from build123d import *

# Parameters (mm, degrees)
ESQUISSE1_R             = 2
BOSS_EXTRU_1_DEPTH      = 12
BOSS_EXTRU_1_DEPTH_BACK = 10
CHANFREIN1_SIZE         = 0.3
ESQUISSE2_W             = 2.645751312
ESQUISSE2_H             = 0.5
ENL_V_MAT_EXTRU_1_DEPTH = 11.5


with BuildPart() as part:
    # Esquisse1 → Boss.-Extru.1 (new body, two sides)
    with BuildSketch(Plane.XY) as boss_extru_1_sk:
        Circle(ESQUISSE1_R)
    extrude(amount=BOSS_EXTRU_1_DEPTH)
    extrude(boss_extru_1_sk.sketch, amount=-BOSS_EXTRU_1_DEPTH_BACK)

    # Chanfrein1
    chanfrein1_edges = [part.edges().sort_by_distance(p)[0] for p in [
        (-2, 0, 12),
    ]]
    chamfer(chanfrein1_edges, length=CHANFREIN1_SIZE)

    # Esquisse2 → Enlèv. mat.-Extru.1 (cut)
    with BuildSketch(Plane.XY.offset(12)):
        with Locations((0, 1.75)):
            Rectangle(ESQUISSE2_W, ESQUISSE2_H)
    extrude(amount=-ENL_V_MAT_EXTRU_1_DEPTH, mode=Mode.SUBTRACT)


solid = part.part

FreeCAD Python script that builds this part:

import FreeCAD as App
import Part
import Sketcher


def edges_at(feature, points):
    """Names of the edges that pass closest to the given points."""
    edges = feature.Shape.Edges
    near = lambda p: min(range(len(edges)), key=lambda i: edges[i].distToShape(Part.Vertex(*p))[0])
    return sorted({f"Edge{near(p) + 1}" for p in points})


def add_polygon(sketch, points):
    """Adds a closed chain of lines whose ends are joined by coincident constraints."""
    first, n = sketch.GeometryCount, len(points)
    for a, b in zip(points, points[1:] + points[:1]):
        sketch.addGeometry(Part.LineSegment(App.Vector(*a, 0), App.Vector(*b, 0)), False)
    for i in range(n):
        sketch.addConstraint(Sketcher.Constraint("Coincident", first + i, 2, first + (i + 1) % n, 1))

doc = App.newDocument("Part")
body = doc.addObject("PartDesign::Body", "Body")

sketch1 = body.newObject("Sketcher::SketchObject", "Sketch")
sketch1.AttachmentSupport = (doc.getObject("XY_Plane"), [""])
sketch1.MapMode = "FlatFace"
sketch1.addGeometry(Part.Circle(App.Vector(0, 0, 0), App.Vector(0, 0, 1), 2), False)
sketch1.addConstraint([
    Sketcher.Constraint("Coincident", 0, 3, -1, 1),
    Sketcher.Constraint("Diameter", 0, 4.0),
])
pad1 = body.newObject("PartDesign::Pad", "Pad")
pad1.Profile = sketch1
pad1.Type = "TwoLengths"
pad1.Length = 12
pad1.Length2 = 10
doc.recompute()

chamfer = body.newObject("PartDesign::Chamfer", "Chamfer")
chamfer.Base = (pad1, edges_at(pad1, [(-2, 0, 12)]))
chamfer.Size = 0.3

sketch2 = body.newObject("Sketcher::SketchObject", "Sketch001")
sketch2.AttachmentSupport = (doc.getObject("XY_Plane"), [""])
sketch2.MapMode = "FlatFace"
sketch2.AttachmentOffset = App.Placement(App.Vector(0, 0, 12), App.Rotation())
add_polygon(sketch2, [(-1.3, 2), (-1.3, 1.5), (1.3, 1.5), (1.3, 2)])
sketch2.addConstraint([
    Sketcher.Constraint("Vertical", 0),
    Sketcher.Constraint("Horizontal", 1),
    Sketcher.Constraint("Vertical", 2),
    Sketcher.Constraint("Horizontal", 3),
    Sketcher.Constraint("DistanceY", 0, 2, 0, 1, 0.5),
    Sketcher.Constraint("DistanceY", -1, 1, 2, 2, 2.0),
    Sketcher.Constraint("DistanceX", 1, 1, 1, 2, 2.645751),
    Sketcher.Constraint("DistanceX", 0, 2, -1, 1, 1.322876),
])
pocket1 = body.newObject("PartDesign::Pocket", "Pocket")
pocket1.Profile = sketch2
pocket1.Length = 11.5

doc.recompute()
